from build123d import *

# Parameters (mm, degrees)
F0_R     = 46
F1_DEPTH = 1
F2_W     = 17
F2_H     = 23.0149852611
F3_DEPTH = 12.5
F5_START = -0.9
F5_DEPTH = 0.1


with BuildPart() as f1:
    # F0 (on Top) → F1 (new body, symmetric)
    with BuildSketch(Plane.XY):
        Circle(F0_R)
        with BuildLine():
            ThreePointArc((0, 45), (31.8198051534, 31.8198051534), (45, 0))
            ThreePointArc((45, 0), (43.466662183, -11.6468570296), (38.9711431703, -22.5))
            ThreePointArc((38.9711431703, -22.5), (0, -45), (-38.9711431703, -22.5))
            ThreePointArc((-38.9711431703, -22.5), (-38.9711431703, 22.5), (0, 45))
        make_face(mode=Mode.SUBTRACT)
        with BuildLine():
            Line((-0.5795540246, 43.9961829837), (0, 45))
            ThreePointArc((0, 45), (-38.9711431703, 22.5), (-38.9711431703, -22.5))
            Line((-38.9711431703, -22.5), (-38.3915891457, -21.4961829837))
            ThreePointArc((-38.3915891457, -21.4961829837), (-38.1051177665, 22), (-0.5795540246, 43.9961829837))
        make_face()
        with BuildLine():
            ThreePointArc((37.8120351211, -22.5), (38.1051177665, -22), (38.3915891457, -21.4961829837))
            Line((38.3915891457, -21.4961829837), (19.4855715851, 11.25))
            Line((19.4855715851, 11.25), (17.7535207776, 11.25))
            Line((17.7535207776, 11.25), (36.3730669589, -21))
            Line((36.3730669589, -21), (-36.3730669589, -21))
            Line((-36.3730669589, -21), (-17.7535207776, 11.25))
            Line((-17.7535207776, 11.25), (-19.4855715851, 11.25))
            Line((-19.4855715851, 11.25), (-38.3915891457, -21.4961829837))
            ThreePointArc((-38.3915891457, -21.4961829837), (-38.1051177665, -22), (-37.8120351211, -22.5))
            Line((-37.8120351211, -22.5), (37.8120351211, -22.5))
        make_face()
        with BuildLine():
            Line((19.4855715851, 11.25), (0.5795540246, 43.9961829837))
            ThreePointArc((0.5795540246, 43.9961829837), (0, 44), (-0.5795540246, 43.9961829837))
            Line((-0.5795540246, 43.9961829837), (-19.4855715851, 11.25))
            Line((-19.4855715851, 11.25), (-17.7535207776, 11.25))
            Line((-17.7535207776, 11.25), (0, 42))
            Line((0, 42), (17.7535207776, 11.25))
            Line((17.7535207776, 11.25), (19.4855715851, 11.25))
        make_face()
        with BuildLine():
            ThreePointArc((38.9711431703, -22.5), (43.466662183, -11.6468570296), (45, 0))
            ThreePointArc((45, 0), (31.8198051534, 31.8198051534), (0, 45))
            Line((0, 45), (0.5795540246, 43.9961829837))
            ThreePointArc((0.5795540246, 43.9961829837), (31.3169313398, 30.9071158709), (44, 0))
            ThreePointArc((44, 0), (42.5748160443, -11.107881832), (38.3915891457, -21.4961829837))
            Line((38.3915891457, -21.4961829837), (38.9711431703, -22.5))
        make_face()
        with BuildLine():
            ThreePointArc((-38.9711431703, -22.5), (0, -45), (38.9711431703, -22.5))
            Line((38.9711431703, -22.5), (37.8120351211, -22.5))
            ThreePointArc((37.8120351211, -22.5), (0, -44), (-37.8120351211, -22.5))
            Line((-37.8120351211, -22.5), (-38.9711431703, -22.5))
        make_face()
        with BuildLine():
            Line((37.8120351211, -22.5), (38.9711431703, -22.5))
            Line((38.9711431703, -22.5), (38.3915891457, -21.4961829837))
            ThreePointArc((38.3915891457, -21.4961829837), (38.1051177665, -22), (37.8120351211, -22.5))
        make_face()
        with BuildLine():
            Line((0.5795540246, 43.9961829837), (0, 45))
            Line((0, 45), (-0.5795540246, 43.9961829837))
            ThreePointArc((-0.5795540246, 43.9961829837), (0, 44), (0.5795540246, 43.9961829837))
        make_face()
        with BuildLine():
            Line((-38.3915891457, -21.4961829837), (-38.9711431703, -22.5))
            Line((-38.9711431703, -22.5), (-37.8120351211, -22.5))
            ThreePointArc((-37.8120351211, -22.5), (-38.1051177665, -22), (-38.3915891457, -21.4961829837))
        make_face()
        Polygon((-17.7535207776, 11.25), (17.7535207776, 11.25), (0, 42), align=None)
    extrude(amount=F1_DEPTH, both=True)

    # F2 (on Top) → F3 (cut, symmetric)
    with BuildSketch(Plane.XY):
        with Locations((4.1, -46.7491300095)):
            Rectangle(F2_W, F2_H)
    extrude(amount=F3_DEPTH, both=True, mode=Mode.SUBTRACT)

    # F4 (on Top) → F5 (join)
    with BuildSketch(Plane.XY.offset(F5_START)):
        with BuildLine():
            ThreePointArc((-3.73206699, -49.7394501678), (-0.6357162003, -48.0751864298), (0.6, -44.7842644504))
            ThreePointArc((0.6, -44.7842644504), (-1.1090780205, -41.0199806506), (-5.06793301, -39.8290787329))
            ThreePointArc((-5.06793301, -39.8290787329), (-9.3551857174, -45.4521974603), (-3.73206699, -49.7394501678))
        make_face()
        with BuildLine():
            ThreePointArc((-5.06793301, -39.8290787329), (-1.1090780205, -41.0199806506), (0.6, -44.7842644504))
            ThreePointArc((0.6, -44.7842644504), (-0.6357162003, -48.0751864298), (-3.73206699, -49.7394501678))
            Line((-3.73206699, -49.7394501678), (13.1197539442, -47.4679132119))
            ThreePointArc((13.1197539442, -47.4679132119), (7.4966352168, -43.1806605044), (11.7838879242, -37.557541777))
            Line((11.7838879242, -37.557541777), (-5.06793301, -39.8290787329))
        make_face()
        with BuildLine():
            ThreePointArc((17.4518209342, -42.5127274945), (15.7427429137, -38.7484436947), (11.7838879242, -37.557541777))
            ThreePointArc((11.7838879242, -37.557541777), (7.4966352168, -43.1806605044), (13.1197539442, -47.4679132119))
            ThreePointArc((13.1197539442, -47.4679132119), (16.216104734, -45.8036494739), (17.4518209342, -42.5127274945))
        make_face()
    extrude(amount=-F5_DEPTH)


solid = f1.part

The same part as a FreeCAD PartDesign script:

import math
import FreeCAD as App
import Part
import Sketcher

V = App.Vector
Q = App.Units.Quantity

doc = App.newDocument("Part")
body = doc.addObject("PartDesign::Body", "Body")

# Sketch on XY plane
sketch1 = body.newObject("Sketcher::SketchObject", "Sketch")
sketch1.AttachmentSupport = (doc.getObject("XY_Plane"), [""])
sketch1.MapMode = "FlatFace"
sketch1.addGeometry(Part.Circle(V(0, 0, 0), V(0, 0, 1), 46), False)
sketch1.addGeometry(Part.ArcOfCircle(Part.Circle(V(0, 0, 0), V(0, 0, 1), 44), math.radians(-29), math.radians(0)), False)
sketch1.addGeometry(Part.LineSegment(V(38, -21, 0), V(19, 11, 0)), False)
sketch1.addGeometry(Part.LineSegment(V(19, 11, 0), V(1, 44, 0)), False)
sketch1.addGeometry(Part.ArcOfCircle(Part.Circle(V(0, 0, 0), V(0, 0, 1), 44), math.radians(0), math.radians(89)), False)
sketch1.addGeometry(Part.LineSegment(V(18, 11, 0), V(36, -21, 0)), False)
sketch1.addGeometry(Part.LineSegment(V(36, -21, 0), V(-36, -21, 0)), False)
sketch1.addGeometry(Part.LineSegment(V(-36, -21, 0), V(-18, 11, 0)), False)
sketch1.addGeometry(Part.LineSegment(V(-18, 11, 0), V(18, 11, 0)), False)
sketch1.addGeometry(Part.LineSegment(V(-1, 44, 0), V(-19, 11, 0)), False)
sketch1.addGeometry(Part.LineSegment(V(-19, 11, 0), V(-38, -21, 0)), False)
sketch1.addGeometry(Part.ArcOfCircle(Part.Circle(V(0, 0, 0), V(0, 0, 1), 44), math.radians(91), math.radians(209)), False)
sketch1.addGeometry(Part.ArcOfCircle(Part.Circle(V(0, 0, 0), V(0, 0, 1), 44), math.radians(-149), math.radians(-31)), False)
sketch1.addGeometry(Part.LineSegment(V(-38, -22, 0), V(38, -22, 0)), False)
sketch1.addConstraint(Sketcher.Constraint("Coincident", 1, 1, 2, 1))
sketch1.addConstraint(Sketcher.Constraint("Coincident", 2, 2, 3, 1))
sketch1.addConstraint(Sketcher.Constraint("Coincident", 3, 2, 4, 2))
sketch1.addConstraint(Sketcher.Constraint("Tangent", 4, 1, 1, 2))
sketch1.addConstraint(Sketcher.Constraint("Coincident", 5, 2, 6, 1))
sketch1.addConstraint(Sketcher.Constraint("Coincident", 6, 2, 7, 1))
sketch1.addConstraint(Sketcher.Constraint("Coincident", 7, 2, 8, 1))
sketch1.addConstraint(Sketcher.Constraint("Coincident", 8, 2, 5, 1))
sketch1.addConstraint(Sketcher.Constraint("Coincident", 9, 2, 10, 1))
sketch1.addConstraint(Sketcher.Constraint("Coincident", 10, 2, 11, 2))
sketch1.addConstraint(Sketcher.Constraint("Coincident", 11, 1, 9, 1))
sketch1.addConstraint(Sketcher.Constraint("Coincident", 12, 1, 13, 1))
sketch1.addConstraint(Sketcher.Constraint("Coincident", 13, 2, 12, 2))
sketch1.addConstraint(Sketcher.Constraint("Horizontal", 6))
sketch1.addConstraint(Sketcher.Constraint("Horizontal", 8))
sketch1.addConstraint(Sketcher.Constraint("Horizontal", 13))
sketch1.addConstraint(Sketcher.Constraint("Coincident", 0, 3, -1, 1))
sketch1.addConstraint(Sketcher.Constraint("Coincident", 1, 3, -1, 1))
sketch1.addConstraint(Sketcher.Constraint("Coincident", 11, 3, -1, 1))
sketch1.addConstraint(Sketcher.Constraint("Coincident", 12, 3, -1, 1))
sketch1.addConstraint(Sketcher.Constraint("Equal", 1, 4))
sketch1.addConstraint(Sketcher.Constraint("Equal", 4, 11))
sketch1.addConstraint(Sketcher.Constraint("Equal", 11, 12))
sketch1.addConstraint(Sketcher.Constraint("Symmetric", 2, 2, 9, 2, -2))
sketch1.addConstraint(Sketcher.Constraint("PointOnObject", 4, 1, -1))
sketch1.addConstraint(Sketcher.Constraint("Parallel", 2, 3))
sketch1.addConstraint(Sketcher.Constraint("Parallel", 3, 5))
sketch1.addConstraint(Sketcher.Constraint("Parallel", 7, 9))
sketch1.addConstraint(Sketcher.Constraint("Parallel", 9, 10))
sketch1.addConstraint(Sketcher.Constraint("Horizontal", 2, 2, 7, 2))
sketch1.addConstraint(Sketcher.Constraint("Horizontal", 1, 1, 10, 2))
sketch1.addConstraint(Sketcher.Constraint("Equal", 2, 3))
sketch1.addConstraint(Sketcher.Constraint("Diameter", 0, 92.0))
sketch1.addConstraint(Sketcher.Constraint("Radius", 1, 44.0))
sketch1.addConstraint(Sketcher.Constraint("Angle", 2, Q("120 deg")))
sketch1.addConstraint(Sketcher.Constraint("DistanceY", 5, 2, -1, 1, 21.0))
sketch1.addConstraint(Sketcher.Constraint("DistanceY", 12, 1, -1, 1, 22.5))
sketch1.addConstraint(Sketcher.Constraint("DistanceY", -1, 1, 2, 2, 11.25))
sketch1.addConstraint(Sketcher.Constraint("DistanceX", 8, 1, 8, 2, 35.507042))
sketch1.addConstraint(Sketcher.Constraint("DistanceX", 7, 2, -1, 1, 17.753521))
pad1 = body.newObject("PartDesign::Pad", "Pad")
pad1.Profile = sketch1
pad1.Length = 2
pad1.Midplane = True

# Sketch on XY plane
sketch2 = body.newObject("Sketcher::SketchObject", "Sketch001")
sketch2.AttachmentSupport = (doc.getObject("XY_Plane"), [""])
sketch2.MapMode = "FlatFace"
sketch2.addGeometry(Part.LineSegment(V(-4, -35, 0), V(-4, -58, 0)), False)
sketch2.addGeometry(Part.LineSegment(V(-4, -58, 0), V(13, -58, 0)), False)
sketch2.addGeometry(Part.LineSegment(V(13, -58, 0), V(13, -35, 0)), False)
sketch2.addGeometry(Part.LineSegment(V(13, -35, 0), V(-4, -35, 0)), False)
sketch2.addConstraint(Sketcher.Constraint("Coincident", 0, 2, 1, 1))
sketch2.addConstraint(Sketcher.Constraint("Coincident", 1, 2, 2, 1))
sketch2.addConstraint(Sketcher.Constraint("Coincident", 2, 2, 3, 1))
sketch2.addConstraint(Sketcher.Constraint("Coincident", 3, 2, 0, 1))
sketch2.addConstraint(Sketcher.Constraint("Vertical", 0))
sketch2.addConstraint(Sketcher.Constraint("Horizontal", 1))
sketch2.addConstraint(Sketcher.Constraint("Vertical", 2))
sketch2.addConstraint(Sketcher.Constraint("Horizontal", 3))
sketch2.addConstraint(Sketcher.Constraint("DistanceX", 1, 1, 1, 2, 17.0))
sketch2.addConstraint(Sketcher.Constraint("DistanceX", 0, 2, -1, 1, 4.4))
sketch2.addConstraint(Sketcher.Constraint("DistanceY", 0, 2, 0, 1, 23.014985))
sketch2.addConstraint(Sketcher.Constraint("DistanceY", 0, 2, -1, 1, 58.256623))
pocket1 = body.newObject("PartDesign::Pocket", "Pocket")
pocket1.Profile = sketch2
pocket1.Length = 25
pocket1.Midplane = True

# Sketch on XY plane
sketch3 = body.newObject("Sketcher::SketchObject", "Sketch002")
sketch3.AttachmentSupport = (doc.getObject("XY_Plane"), [""])
sketch3.MapMode = "FlatFace"
sketch3.AttachmentOffset = App.Placement(V(0, 0, -0.9), App.Rotation())
sketch3.addGeometry(Part.ArcOfCircle(Part.Circle(V(-4, -45, 0), V(0, 0, 1), 5), math.radians(98), math.radians(278)), False)
sketch3.addGeometry(Part.LineSegment(V(-4, -50, 0), V(13, -47, 0)), False)
sketch3.addGeometry(Part.ArcOfCircle(Part.Circle(V(12, -43, 0), V(0, 0, 1), 5), math.radians(-82), math.radians(0)), False)
sketch3.addGeometry(Part.ArcOfCircle(Part.Circle(V(12, -43, 0), V(0, 0, 1), 5), math.radians(0), math.radians(98)), False)
sketch3.addGeometry(Part.LineSegment(V(12, -38, 0), V(-5, -40, 0)), False)
sketch3.addConstraint(Sketcher.Constraint("Tangent", 0, 2, 1, 1))
sketch3.addConstraint(Sketcher.Constraint("Tangent", 1, 2, 2, 1))
sketch3.addConstraint(Sketcher.Constraint("Tangent", 2, 2, 3, 1))
sketch3.addConstraint(Sketcher.Constraint("Tangent", 3, 2, 4, 1))
sketch3.addConstraint(Sketcher.Constraint("Tangent", 4, 2, 0, 1))
sketch3.addConstraint(Sketcher.Constraint("Equal", 0, 2))
sketch3.addConstraint(Sketcher.Constraint("Equal", 2, 3))
sketch3.addConstraint(Sketcher.Constraint("Horizontal", 3, 3, 2, 2))
sketch3.addConstraint(Sketcher.Constraint("Radius", 0, 5.0))
sketch3.addConstraint(Sketcher.Constraint("DistanceX", 0, 3, -1, 1, 4.4))
sketch3.addConstraint(Sketcher.Constraint("DistanceX", -1, 1, 2, 3, 12.451821))
sketch3.addConstraint(Sketcher.Constraint("DistanceY", 0, 2, -1, 1, 49.73945))
sketch3.addConstraint(Sketcher.Constraint("DistanceY", 3, 2, -1, 1, 37.557542))
pad2 = body.newObject("PartDesign::Pad", "Pad001")
pad2.Profile = sketch3
pad2.Length = 0.1
pad2.Reversed = True

doc.recompute()
